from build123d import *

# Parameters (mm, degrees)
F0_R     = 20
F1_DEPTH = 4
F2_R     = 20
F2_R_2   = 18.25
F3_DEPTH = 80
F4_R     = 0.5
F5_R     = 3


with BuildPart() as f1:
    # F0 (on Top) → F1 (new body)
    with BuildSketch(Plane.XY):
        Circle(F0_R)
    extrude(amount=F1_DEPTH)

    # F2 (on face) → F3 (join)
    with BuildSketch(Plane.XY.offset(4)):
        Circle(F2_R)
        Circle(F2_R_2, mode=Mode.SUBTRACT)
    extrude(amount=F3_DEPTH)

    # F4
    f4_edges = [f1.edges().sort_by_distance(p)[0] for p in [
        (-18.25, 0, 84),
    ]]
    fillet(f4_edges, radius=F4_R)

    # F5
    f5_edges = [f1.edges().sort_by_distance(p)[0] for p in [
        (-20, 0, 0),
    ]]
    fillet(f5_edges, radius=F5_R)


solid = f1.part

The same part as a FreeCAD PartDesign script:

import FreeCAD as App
import Part
import Sketcher
from FreeCAD import Vector


def edges_at(feature, points):
    """Names of the edges that pass closest to the given points."""
    edges = feature.Shape.Edges
    near = lambda p: min(range(len(edges)), key=lambda i: edges[i].distToShape(Part.Vertex(*p))[0])
    return sorted({f"Edge{near(p) + 1}" for p in points})

doc = App.newDocument("Part")
body = doc.addObject("PartDesign::Body", "Body")

# Sketch on XY plane
sketch1 = body.newObject("Sketcher::SketchObject", "Sketch")
sketch1.AttachmentSupport = (doc.getObject("XY_Plane"), [""])
sketch1.MapMode = "FlatFace"
sketch1.addGeometry(Part.Circle(Vector(0, 0, 0), Vector(0, 0, 1), 20), False)
sketch1.addConstraint(Sketcher.Constraint("Coincident", 0, 3, -1, 1))
sketch1.addConstraint(Sketcher.Constraint("Diameter", 0, 40.0))
pad1 = body.newObject("PartDesign::Pad", "Pad")
pad1.Profile = sketch1
pad1.Length = 4

# Sketch on XY plane
sketch2 = body.newObject("Sketcher::SketchObject", "Sketch001")
sketch2.AttachmentSupport = (doc.getObject("XY_Plane"), [""])
sketch2.MapMode = "FlatFace"
sketch2.AttachmentOffset = App.Placement(Vector(0, 0, 4), App.Rotation())
sketch2.addGeometry(Part.Circle(Vector(0, 0, 0), Vector(0, 0, 1), 20), False)
sketch2.addGeometry(Part.Circle(Vector(0, 0, 0), Vector(0, 0, 1), 18), False)
sketch2.addConstraint(Sketcher.Constraint("Coincident", 0, 3, -1, 1))
sketch2.addConstraint(Sketcher.Constraint("Coincident", 1, 3, -1, 1))
sketch2.addConstraint(Sketcher.Constraint("Diameter", 0, 40.0))
sketch2.addConstraint(Sketcher.Constraint("Diameter", 1, 36.5))
pad2 = body.newObject("PartDesign::Pad", "Pad001")
pad2.Profile = sketch2
pad2.Length = 80
doc.recompute()

fillet = body.newObject("PartDesign::Fillet", "Fillet")
fillet.Base = (pad2, edges_at(pad2, [(-18.25, 0, 84)]))
fillet.Radius = 0.5
doc.recompute()

fillet2 = body.newObject("PartDesign::Fillet", "Fillet001")
fillet2.Base = (fillet, edges_at(fillet, [(-20, 0, 0)]))
fillet2.Radius = 3

doc.recompute()
